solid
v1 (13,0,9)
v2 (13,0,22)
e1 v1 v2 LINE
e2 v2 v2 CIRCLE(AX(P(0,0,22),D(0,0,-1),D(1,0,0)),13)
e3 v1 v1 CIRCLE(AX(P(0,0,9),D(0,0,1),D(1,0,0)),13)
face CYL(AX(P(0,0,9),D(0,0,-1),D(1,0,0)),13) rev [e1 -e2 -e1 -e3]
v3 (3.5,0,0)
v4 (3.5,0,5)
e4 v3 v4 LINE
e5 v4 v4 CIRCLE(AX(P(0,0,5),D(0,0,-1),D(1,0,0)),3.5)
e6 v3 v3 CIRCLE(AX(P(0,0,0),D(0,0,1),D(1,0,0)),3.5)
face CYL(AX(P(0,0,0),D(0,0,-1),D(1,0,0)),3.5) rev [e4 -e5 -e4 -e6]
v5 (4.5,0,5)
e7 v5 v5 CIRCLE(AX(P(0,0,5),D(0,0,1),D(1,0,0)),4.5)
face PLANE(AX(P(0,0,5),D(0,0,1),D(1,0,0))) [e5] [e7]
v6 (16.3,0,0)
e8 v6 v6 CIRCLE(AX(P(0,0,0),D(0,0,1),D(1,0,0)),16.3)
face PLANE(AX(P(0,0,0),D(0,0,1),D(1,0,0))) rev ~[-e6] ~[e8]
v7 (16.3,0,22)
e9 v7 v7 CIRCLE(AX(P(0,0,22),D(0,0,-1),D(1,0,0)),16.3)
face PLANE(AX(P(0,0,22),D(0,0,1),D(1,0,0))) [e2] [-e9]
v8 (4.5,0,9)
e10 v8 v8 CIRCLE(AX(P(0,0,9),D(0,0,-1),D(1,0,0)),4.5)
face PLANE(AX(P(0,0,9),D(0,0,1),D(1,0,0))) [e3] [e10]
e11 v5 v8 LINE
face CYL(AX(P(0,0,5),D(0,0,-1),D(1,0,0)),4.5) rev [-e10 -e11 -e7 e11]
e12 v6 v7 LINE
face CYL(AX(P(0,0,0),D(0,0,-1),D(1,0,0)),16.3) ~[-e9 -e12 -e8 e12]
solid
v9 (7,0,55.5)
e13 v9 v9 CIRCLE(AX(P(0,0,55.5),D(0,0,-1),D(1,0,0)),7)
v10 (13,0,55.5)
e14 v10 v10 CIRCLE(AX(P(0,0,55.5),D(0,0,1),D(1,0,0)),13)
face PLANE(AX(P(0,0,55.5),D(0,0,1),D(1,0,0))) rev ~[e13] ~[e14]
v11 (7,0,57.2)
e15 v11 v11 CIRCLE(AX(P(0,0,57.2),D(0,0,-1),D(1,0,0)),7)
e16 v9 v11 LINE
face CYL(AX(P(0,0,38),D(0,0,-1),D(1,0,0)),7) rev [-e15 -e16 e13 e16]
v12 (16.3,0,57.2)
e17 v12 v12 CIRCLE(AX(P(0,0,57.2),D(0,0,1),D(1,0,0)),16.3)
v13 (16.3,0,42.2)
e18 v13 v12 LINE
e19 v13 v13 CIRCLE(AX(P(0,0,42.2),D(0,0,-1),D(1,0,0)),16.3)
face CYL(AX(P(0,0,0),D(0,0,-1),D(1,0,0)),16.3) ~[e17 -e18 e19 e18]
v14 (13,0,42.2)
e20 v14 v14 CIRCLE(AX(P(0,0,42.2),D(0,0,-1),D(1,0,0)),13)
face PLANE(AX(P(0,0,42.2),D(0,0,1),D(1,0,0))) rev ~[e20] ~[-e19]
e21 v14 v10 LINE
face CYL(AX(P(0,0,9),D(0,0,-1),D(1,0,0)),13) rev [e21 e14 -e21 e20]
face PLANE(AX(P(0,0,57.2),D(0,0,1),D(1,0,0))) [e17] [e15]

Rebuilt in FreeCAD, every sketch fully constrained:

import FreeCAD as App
import Part
import Sketcher

V = App.Vector

doc = App.newDocument("Part")
body = doc.addObject("PartDesign::Body", "Body")

sketch1 = body.newObject("Sketcher::SketchObject", "Sketch")
sketch1.AttachmentSupport = (doc.getObject("XY_Plane"), [""])
sketch1.MapMode = "FlatFace"
sketch1.AttachmentOffset = App.Placement(V(0, 0, 22), App.Rotation())
sketch1.addGeometry(Part.Circle(V(0, 0, 0), V(0, 0, 1), 20), False)
sketch1.addConstraint([
    Sketcher.Constraint("Coincident", 0, 3, -1, 1),
    Sketcher.Constraint("Diameter", 0, 40.0),
])
pad1 = body.newObject("PartDesign::Pad", "Pad")
pad1.Profile = sketch1
pad1.Length = 20.2
body2 = doc.addObject("PartDesign::Body", "Body001")

sketch2 = body2.newObject("Sketcher::SketchObject", "Sketch001")
sketch2.AttachmentSupport = (doc.getObject("XY_Plane001"), [""])
sketch2.MapMode = "FlatFace"
sketch2.AttachmentOffset = App.Placement(V(0, 0, 38), App.Rotation())
sketch2.addGeometry(Part.Circle(V(0, 0, 0), V(0, 0, 1), 7), False)
sketch2.addConstraint([
    Sketcher.Constraint("Coincident", 0, 3, -1, 1),
    Sketcher.Constraint("Diameter", 0, 14.0),
])
pad2 = body2.newObject("PartDesign::Pad", "Pad001")
pad2.Profile = sketch2
pad2.Length = 20
body3 = doc.addObject("PartDesign::Body", "Body002")

sketch3 = body3.newObject("Sketcher::SketchObject", "Sketch002")
sketch3.AttachmentSupport = (doc.getObject("XY_Plane002"), [""])
sketch3.MapMode = "FlatFace"
sketch3.addGeometry(Part.Circle(V(0, 0, 0), V(0, 0, 1), 3.5), False)
sketch3.addConstraint([
    Sketcher.Constraint("Coincident", 0, 3, -1, 1),
    Sketcher.Constraint("Diameter", 0, 7.0),
])
pad3 = body3.newObject("PartDesign::Pad", "Pad002")
pad3.Profile = sketch3
pad3.Length = 20
body4 = doc.addObject("PartDesign::Body", "Body003")

sketch4 = body4.newObject("Sketcher::SketchObject", "Sketch003")
sketch4.AttachmentSupport = (doc.getObject("XY_Plane003"), [""])
sketch4.MapMode = "FlatFace"
sketch4.AttachmentOffset = App.Placement(V(0, 0, 5), App.Rotation())
sketch4.addGeometry(Part.Circle(V(0, 0, 0), V(0, 0, 1), 4.5), False)
sketch4.addConstraint([
    Sketcher.Constraint("Coincident", 0, 3, -1, 1),
    Sketcher.Constraint("Diameter", 0, 9.0),
])
pad4 = body4.newObject("PartDesign::Pad", "Pad003")
pad4.Profile = sketch4
pad4.Length = 20
body5 = doc.addObject("PartDesign::Body", "Body004")

sketch5 = body5.newObject("Sketcher::SketchObject", "Sketch004")
sketch5.AttachmentSupport = (doc.getObject("XY_Plane004"), [""])
sketch5.MapMode = "FlatFace"
sketch5.AttachmentOffset = App.Placement(V(0, 0, 9), App.Rotation())
sketch5.addGeometry(Part.Circle(V(0, 0, 0), V(0, 0, 1), 13), False)
sketch5.addConstraint([
    Sketcher.Constraint("Coincident", 0, 3, -1, 1),
    Sketcher.Constraint("Diameter", 0, 26.0),
])
pad5 = body5.newObject("PartDesign::Pad", "Pad004")
pad5.Profile = sketch5
pad5.Length = 46.5
doc.recompute()

boolean = body5.newObject("PartDesign::Boolean", "Boolean")
boolean.Type = "Fuse"
boolean.addObjects([body2])
doc.recompute()

boolean2 = body5.newObject("PartDesign::Boolean", "Boolean001")
boolean2.Type = "Fuse"
boolean2.addObjects([body3])
doc.recompute()

boolean3 = body5.newObject("PartDesign::Boolean", "Boolean002")
boolean3.Type = "Fuse"
boolean3.addObjects([body4])
body6 = doc.addObject("PartDesign::Body", "Body005")
body6.AllowCompound = True

sketch6 = body6.newObject("Sketcher::SketchObject", "Sketch005")
sketch6.AttachmentSupport = (doc.getObject("XY_Plane005"), [""])
sketch6.MapMode = "FlatFace"
sketch6.addGeometry(Part.Circle(V(0, 0, 0), V(0, 0, 1), 16.3), False)
sketch6.addConstraint([
    Sketcher.Constraint("Coincident", 0, 3, -1, 1),
    Sketcher.Constraint("Diameter", 0, 32.6),
])
pad6 = body6.newObject("PartDesign::Pad", "Pad005")
pad6.Profile = sketch6
pad6.Length = 57.2
doc.recompute()

boolean4 = body6.newObject("PartDesign::Boolean", "Boolean003")
boolean4.Type = "Cut"
boolean4.addObjects([body5])
doc.recompute()

boolean5 = body6.newObject("PartDesign::Boolean", "Boolean004")
boolean5.Type = "Cut"
boolean5.addObjects([body])

doc.recompute()
